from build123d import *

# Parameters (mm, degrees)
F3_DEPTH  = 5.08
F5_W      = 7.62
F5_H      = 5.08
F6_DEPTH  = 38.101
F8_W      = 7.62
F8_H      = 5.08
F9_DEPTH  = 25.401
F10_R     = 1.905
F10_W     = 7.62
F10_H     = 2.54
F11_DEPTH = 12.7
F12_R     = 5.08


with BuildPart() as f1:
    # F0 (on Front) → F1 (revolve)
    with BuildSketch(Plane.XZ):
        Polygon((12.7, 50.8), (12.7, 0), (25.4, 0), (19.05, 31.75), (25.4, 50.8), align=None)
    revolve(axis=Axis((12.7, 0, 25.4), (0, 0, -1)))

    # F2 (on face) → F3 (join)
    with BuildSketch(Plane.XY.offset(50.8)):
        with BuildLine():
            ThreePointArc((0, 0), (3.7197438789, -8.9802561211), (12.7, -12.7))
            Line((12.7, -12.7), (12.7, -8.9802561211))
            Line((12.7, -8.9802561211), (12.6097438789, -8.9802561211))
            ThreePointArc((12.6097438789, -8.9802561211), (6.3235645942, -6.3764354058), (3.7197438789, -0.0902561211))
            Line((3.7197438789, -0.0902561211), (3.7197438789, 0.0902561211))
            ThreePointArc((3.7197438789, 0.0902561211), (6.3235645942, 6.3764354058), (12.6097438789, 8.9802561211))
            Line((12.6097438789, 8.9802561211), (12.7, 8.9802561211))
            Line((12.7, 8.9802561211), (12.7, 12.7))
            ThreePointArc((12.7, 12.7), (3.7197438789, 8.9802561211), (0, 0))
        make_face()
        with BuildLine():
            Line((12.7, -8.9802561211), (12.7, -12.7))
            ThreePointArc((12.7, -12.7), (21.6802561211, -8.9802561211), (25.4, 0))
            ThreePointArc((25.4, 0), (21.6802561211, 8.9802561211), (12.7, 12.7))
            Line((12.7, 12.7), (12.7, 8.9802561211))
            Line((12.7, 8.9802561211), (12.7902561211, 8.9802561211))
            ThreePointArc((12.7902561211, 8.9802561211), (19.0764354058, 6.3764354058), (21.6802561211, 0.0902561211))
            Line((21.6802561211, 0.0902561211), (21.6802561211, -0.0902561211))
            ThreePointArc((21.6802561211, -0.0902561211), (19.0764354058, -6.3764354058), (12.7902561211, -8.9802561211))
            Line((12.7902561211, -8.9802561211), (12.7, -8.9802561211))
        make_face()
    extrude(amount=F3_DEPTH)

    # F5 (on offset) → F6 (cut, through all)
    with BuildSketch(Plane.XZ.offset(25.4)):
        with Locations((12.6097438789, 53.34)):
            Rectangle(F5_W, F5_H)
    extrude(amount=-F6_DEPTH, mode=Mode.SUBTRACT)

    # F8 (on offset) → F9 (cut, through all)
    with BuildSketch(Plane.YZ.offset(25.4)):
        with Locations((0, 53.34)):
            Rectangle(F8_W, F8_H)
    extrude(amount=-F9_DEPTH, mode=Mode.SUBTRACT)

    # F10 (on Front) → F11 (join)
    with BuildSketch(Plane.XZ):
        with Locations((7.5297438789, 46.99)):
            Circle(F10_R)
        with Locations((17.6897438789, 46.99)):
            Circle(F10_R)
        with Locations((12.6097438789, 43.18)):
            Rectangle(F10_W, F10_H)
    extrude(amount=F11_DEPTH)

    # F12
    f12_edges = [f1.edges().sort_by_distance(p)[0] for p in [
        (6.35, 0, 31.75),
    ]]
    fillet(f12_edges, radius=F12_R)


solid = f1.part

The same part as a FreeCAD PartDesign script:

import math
import FreeCAD as App
import Part
import Sketcher
from FreeCAD import Vector
Q = App.Units.Quantity


def edges_at(feature, points):
    """Names of the edges that pass closest to the given points."""
    edges = feature.Shape.Edges
    near = lambda p: min(range(len(edges)), key=lambda i: edges[i].distToShape(Part.Vertex(*p))[0])
    return sorted({f"Edge{near(p) + 1}" for p in points})


def add_polygon(sketch, points):
    """Adds a closed chain of lines whose ends are joined by coincident constraints."""
    first, n = sketch.GeometryCount, len(points)
    for a, b in zip(points, points[1:] + points[:1]):
        sketch.addGeometry(Part.LineSegment(App.Vector(*a, 0), App.Vector(*b, 0)), False)
    for i in range(n):
        sketch.addConstraint(Sketcher.Constraint("Coincident", first + i, 2, first + (i + 1) % n, 1))

doc = App.newDocument("Part")
body = doc.addObject("PartDesign::Body", "Body")

# Sketch on XZ plane
sketch1 = doc.addObject("Sketcher::SketchObject", "Sketch")
body.addObject(sketch1)
sketch1.AttachmentSupport = (doc.XZ_Plane, [""])
sketch1.MapMode = "FlatFace"
add_polygon(sketch1, [(12.7, 50.8), (12.7, 0), (25.4, 0), (19.05, 31.75), (25.4, 50.8)])  # lines 0-4
sketch1.addGeometry(Part.LineSegment(Vector(12.7, 50.8, 0), Vector(12.7, 0, 0)), True)  # axis
sketch1.addConstraint(Sketcher.Constraint("Vertical", 0))
sketch1.addConstraint(Sketcher.Constraint("Horizontal", 1))
sketch1.addConstraint(Sketcher.Constraint("Horizontal", 4))
sketch1.addConstraint(Sketcher.Constraint("Vertical", 5))
sketch1.addConstraint(Sketcher.Constraint("Coincident", 5, 1, 4, 2))
sketch1.addConstraint(Sketcher.Constraint("PointOnObject", 0, 2, -1))
sketch1.addConstraint(Sketcher.Constraint("PointOnObject", 5, 2, -1))
sketch1.addConstraint(Sketcher.Constraint("Vertical", 1, 2, 3, 2))
sketch1.addConstraint(Sketcher.Constraint("DistanceY", 0, 2, 0, 1, Q("2 in")))
sketch1.addConstraint(Sketcher.Constraint("DistanceX", 1, 1, 1, 2, Q("0.5 in")))
sketch1.addConstraint(Sketcher.Constraint("DistanceX", -1, 1, 1, 2, Q("1 in")))
sketch1.addConstraint(Sketcher.Constraint("DistanceX", -1, 1, 2, 2, Q("0.75 in")))
sketch1.addConstraint(Sketcher.Constraint("DistanceY", -1, 1, 2, 2, Q("1.25 in")))
revolution = doc.addObject("PartDesign::Revolution", "Revolution")
body.addObject(revolution)
revolution.Profile = sketch1
revolution.ReferenceAxis = (sketch1, ["Axis0"])
revolution.Angle = 360

# Sketch on XY plane
sketch2 = doc.addObject("Sketcher::SketchObject", "Sketch001")
body.addObject(sketch2)
sketch2.AttachmentSupport = (doc.XY_Plane, [""])
sketch2.MapMode = "FlatFace"
sketch2.AttachmentOffset = App.Placement(Vector(0, 0, 2 * 25.4), App.Rotation())
sketch2.addGeometry(Part.ArcOfCircle(Part.Circle(Vector(12.7, 0, 0), Vector(0, 0, 1), 12.7), math.radians(180), math.radians(270)), False)
sketch2.addGeometry(Part.ArcOfCircle(Part.Circle(Vector(12.7, 0, 0), Vector(0, 0, 1), 12.7), math.radians(-90), math.radians(0)), False)
sketch2.addGeometry(Part.ArcOfCircle(Part.Circle(Vector(12.7, 0, 0), Vector(0, 0, 1), 12.7), math.radians(0), math.radians(90)), False)
sketch2.addGeometry(Part.ArcOfCircle(Part.Circle(Vector(12.7, 0, 0), Vector(0, 0, 1), 12.7), math.radians(90), math.radians(180)), False)
sketch2.addGeometry(Part.ArcOfCircle(Part.Circle(Vector(12.609744, -0.090256, 0), Vector(0, 0, 1), 8.89), math.radians(180), math.radians(270)), False)
sketch2.addGeometry(Part.LineSegment(Vector(3.719744, -0.090256, 0), Vector(3.719744, 0.090256, 0)), False)
sketch2.addGeometry(Part.ArcOfCircle(Part.Circle(Vector(12.609744, 0.090256, 0), Vector(0, 0, 1), 8.89), math.radians(90), math.radians(180)), False)
sketch2.addGeometry(Part.LineSegment(Vector(12.609744, 8.980256, 0), Vector(12.790256, 8.980256, 0)), False)
sketch2.addGeometry(Part.ArcOfCircle(Part.Circle(Vector(12.790256, 0.090256, 0), Vector(0, 0, 1), 8.89), math.radians(0), math.radians(90)), False)
sketch2.addGeometry(Part.LineSegment(Vector(21.680256, 0.090256, 0), Vector(21.680256, -0.090256, 0)), False)
sketch2.addGeometry(Part.ArcOfCircle(Part.Circle(Vector(12.790256, -0.090256, 0), Vector(0, 0, 1), 8.89), math.radians(-90), math.radians(0)), False)
sketch2.addGeometry(Part.LineSegment(Vector(12.790256, -8.980256, 0), Vector(12.609744, -8.980256, 0)), False)
sketch2.addConstraint(Sketcher.Constraint("Tangent", 0, 2, 1, 1))
sketch2.addConstraint(Sketcher.Constraint("Tangent", 1, 2, 2, 1))
sketch2.addConstraint(Sketcher.Constraint("Tangent", 2, 2, 3, 1))
sketch2.addConstraint(Sketcher.Constraint("Tangent", 3, 2, 0, 1))
sketch2.addConstraint(Sketcher.Constraint("Tangent", 4, 1, 5, 1))
sketch2.addConstraint(Sketcher.Constraint("Tangent", 5, 2, 6, 2))
sketch2.addConstraint(Sketcher.Constraint("Tangent", 6, 1, 7, 1))
sketch2.addConstraint(Sketcher.Constraint("Tangent", 7, 2, 8, 2))
sketch2.addConstraint(Sketcher.Constraint("Tangent", 8, 1, 9, 1))
sketch2.addConstraint(Sketcher.Constraint("Tangent", 9, 2, 10, 2))
sketch2.addConstraint(Sketcher.Constraint("Tangent", 10, 1, 11, 1))
sketch2.addConstraint(Sketcher.Constraint("Tangent", 11, 2, 4, 2))
sketch2.addConstraint(Sketcher.Constraint("Vertical", 5))
sketch2.addConstraint(Sketcher.Constraint("Horizontal", 7))
sketch2.addConstraint(Sketcher.Constraint("Vertical", 9))
sketch2.addConstraint(Sketcher.Constraint("Horizontal", 11))
sketch2.addConstraint(Sketcher.Constraint("Coincident", 3, 2, -1, 1))
sketch2.addConstraint(Sketcher.Constraint("Equal", 0, 1))
sketch2.addConstraint(Sketcher.Constraint("Equal", 4, 6))
sketch2.addConstraint(Sketcher.Constraint("Equal", 6, 8))
sketch2.addConstraint(Sketcher.Constraint("Equal", 8, 10))
sketch2.addConstraint(Sketcher.Constraint("Symmetric", 0, 2, 2, 2, -1))
sketch2.addConstraint(Sketcher.Constraint("PointOnObject", 1, 2, -1))
sketch2.addConstraint(Sketcher.Constraint("Vertical", 3, 3, 0, 2))
sketch2.addConstraint(Sketcher.Constraint("Equal", 11, 5))
sketch2.addConstraint(Sketcher.Constraint("Radius", 0, Q("0.5 in")))
sketch2.addConstraint(Sketcher.Constraint("Radius", 4, Q("0.35 in")))
sketch2.addConstraint(Sketcher.Constraint("DistanceX", 7, 1, 7, 2, Q("0.180512 mm")))
sketch2.addConstraint(Sketcher.Constraint("DistanceX", -1, 1, 4, 3, Q("12.609744 mm")))
sketch2.addConstraint(Sketcher.Constraint("DistanceY", 4, 3, -1, 1, Q("0.090256 mm")))
pad1 = doc.addObject("PartDesign::Pad", "Pad")
body.addObject(pad1)
pad1.Profile = sketch2
pad1.Length = Q("0.2 in")

# Sketch on XZ plane
sketch3 = doc.addObject("Sketcher::SketchObject", "Sketch002")
body.addObject(sketch3)
sketch3.AttachmentSupport = (doc.XZ_Plane, [""])
sketch3.MapMode = "FlatFace"
sketch3.AttachmentOffset = App.Placement(Vector(0, 0, 1 * 25.4), App.Rotation())
add_polygon(sketch3, [(8.799744, 55.88), (8.799744, 50.8), (16.419744, 50.8), (16.419744, 55.88)])  # lines 0-3
sketch3.addConstraint(Sketcher.Constraint("Vertical", 0))
sketch3.addConstraint(Sketcher.Constraint("Horizontal", 1))
sketch3.addConstraint(Sketcher.Constraint("Vertical", 2))
sketch3.addConstraint(Sketcher.Constraint("Horizontal", 3))
sketch3.addConstraint(Sketcher.Constraint("DistanceX", 1, 1, 1, 2, Q("0.3 in")))
sketch3.addConstraint(Sketcher.Constraint("DistanceY", 0, 2, 0, 1, Q("0.2 in")))
sketch3.addConstraint(Sketcher.Constraint("DistanceY", -1, 1, 0, 2, Q("2 in")))
sketch3.addConstraint(Sketcher.Constraint("DistanceX", -1, 1, 0, 2, Q("8.799744 mm")))
pocket1 = doc.addObject("PartDesign::Pocket", "Pocket")
body.addObject(pocket1)
pocket1.Profile = sketch3
pocket1.Type = "ThroughAll"

# Sketch on YZ plane
sketch4 = doc.addObject("Sketcher::SketchObject", "Sketch003")
body.addObject(sketch4)
sketch4.AttachmentSupport = (doc.YZ_Plane, [""])
sketch4.MapMode = "FlatFace"
sketch4.AttachmentOffset = App.Placement(Vector(0, 0, 1 * 25.4), App.Rotation())
add_polygon(sketch4, [(-3.81, 55.88), (-3.81, 50.8), (3.81, 50.8), (3.81, 55.88)])  # lines 0-3
sketch4.addConstraint(Sketcher.Constraint("Vertical", 0))
sketch4.addConstraint(Sketcher.Constraint("Horizontal", 1))
sketch4.addConstraint(Sketcher.Constraint("Vertical", 2))
sketch4.addConstraint(Sketcher.Constraint("Horizontal", 3))
sketch4.addConstraint(Sketcher.Constraint("DistanceX", 1, 1, 1, 2, Q("0.3 in")))
sketch4.addConstraint(Sketcher.Constraint("DistanceY", 0, 2, 0, 1, Q("0.2 in")))
sketch4.addConstraint(Sketcher.Constraint("DistanceY", -1, 1, 0, 2, Q("2 in")))
sketch4.addConstraint(Sketcher.Constraint("DistanceX", 0, 2, -1, 1, Q("0.15 in")))
pocket2 = doc.addObject("PartDesign::Pocket", "Pocket001")
body.addObject(pocket2)
pocket2.Profile = sketch4
pocket2.Type = "ThroughAll"

# Sketch on XZ plane
sketch5 = doc.addObject("Sketcher::SketchObject", "Sketch004")
body.addObject(sketch5)
sketch5.AttachmentSupport = (doc.XZ_Plane, [""])
sketch5.MapMode = "FlatFace"
sketch5.addGeometry(Part.Circle(Vector(7.529744, 46.99, 0), Vector(0, 0, 1), 1.905), False)  # 0
sketch5.addGeometry(Part.Circle(Vector(17.689744, 46.99, 0), Vector(0, 0, 1), 1.905), False)  # 1
add_polygon(sketch5, [(8.799744, 44.45), (8.799744, 41.91), (16.419744, 41.91), (16.419744, 44.45)])  # lines 2-5
sketch5.addConstraint(Sketcher.Constraint("Vertical", 2))
sketch5.addConstraint(Sketcher.Constraint("Horizontal", 3))
sketch5.addConstraint(Sketcher.Constraint("Vertical", 4))
sketch5.addConstraint(Sketcher.Constraint("Horizontal", 5))
sketch5.addConstraint(Sketcher.Constraint("Equal", 0, 1))
sketch5.addConstraint(Sketcher.Constraint("Horizontal", 0, 3, 1, 3))
sketch5.addConstraint(Sketcher.Constraint("Diameter", 0, Q("0.15 in")))
sketch5.addConstraint(Sketcher.Constraint("DistanceX", 3, 1, 3, 2, Q("0.3 in")))
sketch5.addConstraint(Sketcher.Constraint("DistanceY", 2, 2, 2, 1, Q("0.1 in")))
sketch5.addConstraint(Sketcher.Constraint("DistanceX", 0, 3, 1, 3, Q("0.4 in")))
sketch5.addConstraint(Sketcher.Constraint("DistanceY", 2, 2, 0, 3, Q("0.2 in")))
sketch5.addConstraint(Sketcher.Constraint("DistanceY", -1, 1, 0, 3, Q("1.85 in")))
sketch5.addConstraint(Sketcher.Constraint("DistanceX", 0, 3, 2, 2, Q("0.05 in")))
sketch5.addConstraint(Sketcher.Constraint("DistanceX", -1, 1, 0, 3, Q("7.529744 mm")))
pad2 = doc.addObject("PartDesign::Pad", "Pad001")
body.addObject(pad2)
pad2.Profile = sketch5
pad2.Length = Q("0.5 in")
doc.recompute()

fillet = doc.addObject("PartDesign::Fillet", "Fillet")
body.addObject(fillet)
fillet.Base = (pad2, edges_at(pad2, [(6.35, 0, 31.75)]))
fillet.Radius = Q("0.2 in")

doc.recompute()
